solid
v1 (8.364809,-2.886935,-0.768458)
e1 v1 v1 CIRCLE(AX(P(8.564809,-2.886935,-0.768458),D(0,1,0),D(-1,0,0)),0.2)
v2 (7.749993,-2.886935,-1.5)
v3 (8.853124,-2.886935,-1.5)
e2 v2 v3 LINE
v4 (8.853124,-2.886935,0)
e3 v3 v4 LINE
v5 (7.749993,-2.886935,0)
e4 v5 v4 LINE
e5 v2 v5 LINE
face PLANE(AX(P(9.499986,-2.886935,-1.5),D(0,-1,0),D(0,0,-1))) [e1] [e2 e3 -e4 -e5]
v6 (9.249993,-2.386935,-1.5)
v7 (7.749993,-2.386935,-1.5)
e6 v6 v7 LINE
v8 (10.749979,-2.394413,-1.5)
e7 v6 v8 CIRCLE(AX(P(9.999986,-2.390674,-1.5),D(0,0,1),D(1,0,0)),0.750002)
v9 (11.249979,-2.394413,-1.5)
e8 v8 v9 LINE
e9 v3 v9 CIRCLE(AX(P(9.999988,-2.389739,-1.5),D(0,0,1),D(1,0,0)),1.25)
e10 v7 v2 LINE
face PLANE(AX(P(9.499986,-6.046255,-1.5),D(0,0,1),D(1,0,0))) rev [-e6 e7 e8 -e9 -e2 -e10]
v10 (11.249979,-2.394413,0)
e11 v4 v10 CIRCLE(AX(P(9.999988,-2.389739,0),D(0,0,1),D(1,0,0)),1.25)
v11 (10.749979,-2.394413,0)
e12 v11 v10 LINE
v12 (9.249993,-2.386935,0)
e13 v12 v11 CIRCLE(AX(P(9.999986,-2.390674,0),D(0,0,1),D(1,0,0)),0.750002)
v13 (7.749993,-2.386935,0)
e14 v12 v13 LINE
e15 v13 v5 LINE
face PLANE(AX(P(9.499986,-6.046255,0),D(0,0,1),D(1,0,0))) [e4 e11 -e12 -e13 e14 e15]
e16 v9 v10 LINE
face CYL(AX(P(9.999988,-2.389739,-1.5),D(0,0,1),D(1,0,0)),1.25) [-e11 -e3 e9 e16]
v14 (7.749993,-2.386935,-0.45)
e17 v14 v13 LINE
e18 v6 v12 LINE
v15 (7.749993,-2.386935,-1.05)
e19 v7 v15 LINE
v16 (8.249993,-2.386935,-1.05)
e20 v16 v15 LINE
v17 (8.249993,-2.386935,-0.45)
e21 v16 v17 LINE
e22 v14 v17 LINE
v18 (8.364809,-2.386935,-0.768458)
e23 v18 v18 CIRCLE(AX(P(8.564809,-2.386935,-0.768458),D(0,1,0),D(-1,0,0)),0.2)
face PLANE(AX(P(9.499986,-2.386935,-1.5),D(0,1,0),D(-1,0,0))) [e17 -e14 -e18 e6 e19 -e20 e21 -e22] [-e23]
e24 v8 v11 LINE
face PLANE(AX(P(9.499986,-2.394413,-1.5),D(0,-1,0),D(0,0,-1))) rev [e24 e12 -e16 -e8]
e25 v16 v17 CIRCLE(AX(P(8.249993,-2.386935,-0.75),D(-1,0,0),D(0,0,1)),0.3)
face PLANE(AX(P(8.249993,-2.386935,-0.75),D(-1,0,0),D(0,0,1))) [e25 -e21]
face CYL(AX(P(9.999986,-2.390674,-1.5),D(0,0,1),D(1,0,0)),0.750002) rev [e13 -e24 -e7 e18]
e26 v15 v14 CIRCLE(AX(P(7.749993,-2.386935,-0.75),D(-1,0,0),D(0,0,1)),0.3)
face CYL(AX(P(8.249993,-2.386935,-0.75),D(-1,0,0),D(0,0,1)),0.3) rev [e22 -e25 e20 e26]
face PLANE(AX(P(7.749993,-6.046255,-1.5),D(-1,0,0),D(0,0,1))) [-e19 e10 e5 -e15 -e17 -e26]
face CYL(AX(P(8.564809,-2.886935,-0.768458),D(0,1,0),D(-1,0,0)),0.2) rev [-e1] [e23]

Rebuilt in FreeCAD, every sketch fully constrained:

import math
import FreeCAD as App
import Part
import Sketcher
from FreeCAD import Vector
Q = App.Units.Quantity

doc = App.newDocument("Part")
params = doc.addObject("Spreadsheet::Sheet", "Params")
for row, (alias, value) in enumerate([
    ("sketch1_radius", "1.25 mm"),
    ("sketch1_width", "1.5 mm"),
    ("sketch1_width2", "0.5 mm"),
    ("sketch1_height", "0.5 mm"),
    ("pad1_length", "1.5 mm"),
    ("sketch2_diameter", "0.6 mm"),
    ("pocket1_length", "0.5 mm"),
    ("sketch3_diameter", "0.4 mm"),
    ("pocket2_length", "0.5 mm"),
], start=1):
    params.set(f"A{row}", alias)
    params.set(f"B{row}", "=" + value)
    params.setAlias(f"B{row}", alias)

body = doc.addObject("PartDesign::Body", "Body")

# Sketch on XY plane
sketch1 = doc.addObject("Sketcher::SketchObject", "Sketch")
body.addObject(sketch1)
sketch1.AttachmentSupport = (doc.XY_Plane, [""])
sketch1.MapMode = "FlatFace"
sketch1.addGeometry(Part.LineSegment(Vector(9.249993, -2.386935, 0), Vector(7.749993, -2.386935, 0)), False)
sketch1.addGeometry(Part.LineSegment(Vector(7.749993, -2.386935, 0), Vector(7.749993, -2.886935, 0)), False)
sketch1.addGeometry(Part.LineSegment(Vector(7.749993, -2.886935, 0), Vector(8.853124, -2.886935, 0)), False)
sketch1.addGeometry(Part.ArcOfCircle(Part.Circle(Vector(9.999988, -2.389739, 0), Vector(0, 0, 1), 1.25), math.radians(-156.562003), math.radians(-0.214246)), False)
sketch1.addGeometry(Part.LineSegment(Vector(11.249979, -2.394413, 0), Vector(10.749979, -2.394413, 0)), False)
sketch1.addGeometry(Part.ArcOfCircle(Part.Circle(Vector(9.999986, -2.390674, 0), Vector(0, 0, 1), 0.750002), math.radians(179.714339), math.radians(359.714339)), False)
sketch1.addConstraint(Sketcher.Constraint("Coincident", 0, 2, 1, 1))
sketch1.addConstraint(Sketcher.Constraint("Coincident", 1, 2, 2, 1))
sketch1.addConstraint(Sketcher.Constraint("Coincident", 2, 2, 3, 1))
sketch1.addConstraint(Sketcher.Constraint("Coincident", 3, 2, 4, 1))
sketch1.addConstraint(Sketcher.Constraint("Coincident", 4, 2, 5, 2))
sketch1.addConstraint(Sketcher.Constraint("Coincident", 5, 1, 0, 1))
sketch1.addConstraint(Sketcher.Constraint("Horizontal", 0))
sketch1.addConstraint(Sketcher.Constraint("Vertical", 1))
sketch1.addConstraint(Sketcher.Constraint("Horizontal", 2))
sketch1.addConstraint(Sketcher.Constraint("Horizontal", 4))
sketch1.addConstraint(Sketcher.Constraint("Radius", 3, Q("1.25 mm")))
sketch1.addConstraint(Sketcher.Constraint("DistanceX", 0, 2, 0, 1, Q("1.5 mm")))
sketch1.addConstraint(Sketcher.Constraint("DistanceX", 4, 2, 4, 1, Q("0.5 mm")))
sketch1.addConstraint(Sketcher.Constraint("DistanceY", 1, 2, 1, 1, Q("0.5 mm")))
sketch1.addConstraint(Sketcher.Constraint("Radius", 5, Q("0.750002 mm")))
sketch1.addConstraint(Sketcher.Constraint("DistanceX", 2, 1, 2, 2, Q("1.103131 mm")))
sketch1.addConstraint(Sketcher.Constraint("DistanceY", 3, 3, -1, 1, Q("2.389739 mm")))
sketch1.addConstraint(Sketcher.Constraint("DistanceX", -1, 1, 3, 2, Q("11.249979 mm")))
sketch1.addConstraint(Sketcher.Constraint("DistanceY", 5, 3, 0, 2, Q("0.003739 mm")))
sketch1.addConstraint(Sketcher.Constraint("DistanceY", 3, 2, 5, 3, Q("0.003739 mm")))
sketch1.setExpression("Constraints[10]", "Params.sketch1_radius")
sketch1.setExpression("Constraints[11]", "Params.sketch1_width")
sketch1.setExpression("Constraints[12]", "Params.sketch1_width2")
sketch1.setExpression("Constraints[13]", "Params.sketch1_height")
pad1 = doc.addObject("PartDesign::Pad", "Pad")
body.addObject(pad1)
pad1.Profile = sketch1
pad1.setExpression("Length", "Params.pad1_length")
pad1.Reversed = True

# Sketch on YZ plane
sketch2 = doc.addObject("Sketcher::SketchObject", "Sketch001")
body.addObject(sketch2)
sketch2.AttachmentSupport = (doc.YZ_Plane, [""])
sketch2.MapMode = "FlatFace"
sketch2.AttachmentOffset = App.Placement(Vector(0, 0, 7.749993), App.Rotation())
sketch2.addGeometry(Part.Circle(Vector(-2.39, -0.75, 0), Vector(0, 0, 1), 0.3), False)
sketch2.addConstraint(Sketcher.Constraint("Diameter", 0, Q("0.6 mm")))
sketch2.addConstraint(Sketcher.Constraint("DistanceY", 0, 3, -1, 1, Q("0.75 mm")))
sketch2.addConstraint(Sketcher.Constraint("DistanceX", 0, 3, -1, 1, Q("2.386935 mm")))
sketch2.setExpression("Constraints[0]", "Params.sketch2_diameter")
pocket1 = doc.addObject("PartDesign::Pocket", "Pocket")
body.addObject(pocket1)
pocket1.Profile = sketch2
pocket1.setExpression("Length", "Params.pocket1_length")
pocket1.Reversed = True

# Sketch on XZ plane
sketch3 = doc.addObject("Sketcher::SketchObject", "Sketch002")
body.addObject(sketch3)
sketch3.AttachmentSupport = (doc.XZ_Plane, [""])
sketch3.MapMode = "FlatFace"
sketch3.AttachmentOffset = App.Placement(Vector(0, 0, 2.386935), App.Rotation())
sketch3.addGeometry(Part.Circle(Vector(8.56, -0.77, 0), Vector(0, 0, 1), 0.2), False)
sketch3.addConstraint(Sketcher.Constraint("Diameter", 0, Q("0.4 mm")))
sketch3.addConstraint(Sketcher.Constraint("DistanceX", -1, 1, 0, 3, Q("8.564809 mm")))
sketch3.addConstraint(Sketcher.Constraint("DistanceY", 0, 3, -1, 1, Q("0.768458 mm")))
sketch3.setExpression("Constraints[0]", "Params.sketch3_diameter")
pocket2 = doc.addObject("PartDesign::Pocket", "Pocket001")
body.addObject(pocket2)
pocket2.Profile = sketch3
pocket2.setExpression("Length", "Params.pocket2_length")
pocket2.Reversed = True

doc.recompute()
